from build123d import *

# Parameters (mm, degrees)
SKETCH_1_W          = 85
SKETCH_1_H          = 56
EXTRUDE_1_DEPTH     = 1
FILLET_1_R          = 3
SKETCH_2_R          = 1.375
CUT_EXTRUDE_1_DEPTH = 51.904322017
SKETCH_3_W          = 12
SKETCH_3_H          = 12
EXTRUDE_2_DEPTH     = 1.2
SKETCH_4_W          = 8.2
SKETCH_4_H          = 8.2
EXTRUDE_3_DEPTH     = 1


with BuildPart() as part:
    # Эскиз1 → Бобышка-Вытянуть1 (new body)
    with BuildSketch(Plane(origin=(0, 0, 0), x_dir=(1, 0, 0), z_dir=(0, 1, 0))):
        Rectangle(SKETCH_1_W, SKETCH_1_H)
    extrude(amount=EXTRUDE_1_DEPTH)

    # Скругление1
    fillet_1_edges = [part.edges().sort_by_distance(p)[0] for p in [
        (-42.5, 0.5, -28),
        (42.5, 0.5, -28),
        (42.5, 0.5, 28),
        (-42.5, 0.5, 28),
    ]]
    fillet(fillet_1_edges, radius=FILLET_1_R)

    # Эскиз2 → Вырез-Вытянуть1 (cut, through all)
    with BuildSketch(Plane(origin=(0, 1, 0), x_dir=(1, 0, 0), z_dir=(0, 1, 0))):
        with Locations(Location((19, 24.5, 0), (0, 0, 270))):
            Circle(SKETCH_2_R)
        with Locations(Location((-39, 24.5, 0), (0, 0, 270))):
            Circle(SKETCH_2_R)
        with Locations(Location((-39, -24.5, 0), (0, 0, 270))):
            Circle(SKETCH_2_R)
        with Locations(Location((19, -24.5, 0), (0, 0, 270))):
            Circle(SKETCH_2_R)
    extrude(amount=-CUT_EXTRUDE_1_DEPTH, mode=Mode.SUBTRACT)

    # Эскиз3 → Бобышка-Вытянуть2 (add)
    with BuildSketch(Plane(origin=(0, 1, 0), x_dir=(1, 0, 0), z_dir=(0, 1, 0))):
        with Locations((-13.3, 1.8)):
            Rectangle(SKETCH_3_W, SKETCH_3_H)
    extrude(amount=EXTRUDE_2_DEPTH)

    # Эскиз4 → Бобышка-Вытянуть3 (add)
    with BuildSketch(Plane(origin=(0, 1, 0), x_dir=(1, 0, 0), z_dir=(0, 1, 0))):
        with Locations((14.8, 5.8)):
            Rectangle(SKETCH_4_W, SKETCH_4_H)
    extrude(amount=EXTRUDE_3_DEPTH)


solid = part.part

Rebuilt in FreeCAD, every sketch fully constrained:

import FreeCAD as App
import Part
import Sketcher

V = App.Vector


def edges_at(feature, points):
    """Names of the edges that pass closest to the given points."""
    edges = feature.Shape.Edges
    near = lambda p: min(range(len(edges)), key=lambda i: edges[i].distToShape(Part.Vertex(*p))[0])
    return sorted({f"Edge{near(p) + 1}" for p in points})

doc = App.newDocument("Part")
body = doc.addObject("PartDesign::Body", "Body")

# Sketch on XZ plane
sketch1 = body.newObject("Sketcher::SketchObject", "Sketch")
sketch1.AttachmentSupport = (doc.getObject("XZ_Plane"), [""])
sketch1.MapMode = "FlatFace"
sketch1.addGeometry([
    Part.LineSegment(V(-42.5, -28, 0), V(-42.5, 28, 0)),
    Part.LineSegment(V(-42.5, 28, 0), V(42.5, 28, 0)),
    Part.LineSegment(V(42.5, 28, 0), V(42.5, -28, 0)),
    Part.LineSegment(V(42.5, -28, 0), V(-42.5, -28, 0)),
], False)
sketch1.addConstraint([
    Sketcher.Constraint("Coincident", 0, 2, 1, 1),
    Sketcher.Constraint("Coincident", 1, 2, 2, 1),
    Sketcher.Constraint("Coincident", 2, 2, 3, 1),
    Sketcher.Constraint("Coincident", 3, 2, 0, 1),
    Sketcher.Constraint("Vertical", 0),
    Sketcher.Constraint("Horizontal", 1),
    Sketcher.Constraint("Vertical", 2),
    Sketcher.Constraint("Horizontal", 3),
    Sketcher.Constraint("Symmetric", 0, 2, 2, 2, -1, 1),
    Sketcher.Constraint("DistanceX", 1, 1, 1, 2, 85.0),
    Sketcher.Constraint("DistanceY", 0, 1, 0, 2, 56.0),
])
pad1 = body.newObject("PartDesign::Pad", "Pad")
pad1.Profile = sketch1
pad1.Length = 1
pad1.Reversed = True
doc.recompute()

fillet = body.newObject("PartDesign::Fillet", "Fillet")
fillet.Base = (pad1, edges_at(pad1, [
    (-42.5, 0.5, -28),
    (42.5, 0.5, -28),
    (42.5, 0.5, 28),
    (-42.5, 0.5, 28),
]))
fillet.Radius = 3

# Sketch on XZ plane
sketch2 = body.newObject("Sketcher::SketchObject", "Sketch001")
sketch2.AttachmentSupport = (doc.getObject("XZ_Plane"), [""])
sketch2.MapMode = "FlatFace"
sketch2.AttachmentOffset = App.Placement(V(0, 0, -1), App.Rotation())
sketch2.addGeometry([
    Part.Circle(V(19, -24.5, 0), V(0, 0, 1), 1.375),
    Part.Circle(V(-39, -24.5, 0), V(0, 0, 1), 1.375),
    Part.Circle(V(-39, 24.5, 0), V(0, 0, 1), 1.375),
    Part.Circle(V(19, 24.5, 0), V(0, 0, 1), 1.375),
], False)
sketch2.addConstraint([
    Sketcher.Constraint("Equal", 0, 1),
    Sketcher.Constraint("Equal", 1, 2),
    Sketcher.Constraint("Equal", 2, 3),
    Sketcher.Constraint("Symmetric", 1, 3, 2, 3, -1),
    Sketcher.Constraint("Symmetric", 0, 3, 3, 3, -1),
    Sketcher.Constraint("Horizontal", 0, 3, 1, 3),
    Sketcher.Constraint("Diameter", 0, 2.75),
    Sketcher.Constraint("DistanceX", -1, 1, 0, 3, 19.0),
    Sketcher.Constraint("DistanceX", 1, 3, -1, 1, 39.0),
    Sketcher.Constraint("DistanceY", 1, 3, 2, 3, 49.0),
])
pocket1 = body.newObject("PartDesign::Pocket", "Pocket")
pocket1.Profile = sketch2
pocket1.Type = "ThroughAll"
pocket1.Reversed = True

# Sketch on XZ plane
sketch3 = body.newObject("Sketcher::SketchObject", "Sketch002")
sketch3.AttachmentSupport = (doc.getObject("XZ_Plane"), [""])
sketch3.MapMode = "FlatFace"
sketch3.AttachmentOffset = App.Placement(V(0, 0, -1), App.Rotation())
sketch3.addGeometry([
    Part.LineSegment(V(-19.3, -7.8, 0), V(-19.3, 4.2, 0)),
    Part.LineSegment(V(-19.3, 4.2, 0), V(-7.3, 4.2, 0)),
    Part.LineSegment(V(-7.3, 4.2, 0), V(-7.3, -7.8, 0)),
    Part.LineSegment(V(-7.3, -7.8, 0), V(-19.3, -7.8, 0)),
], False)
sketch3.addConstraint([
    Sketcher.Constraint("Coincident", 0, 2, 1, 1),
    Sketcher.Constraint("Coincident", 1, 2, 2, 1),
    Sketcher.Constraint("Coincident", 2, 2, 3, 1),
    Sketcher.Constraint("Coincident", 3, 2, 0, 1),
    Sketcher.Constraint("Vertical", 0),
    Sketcher.Constraint("Horizontal", 1),
    Sketcher.Constraint("Vertical", 2),
    Sketcher.Constraint("Horizontal", 3),
    Sketcher.Constraint("Equal", 3, 0),
    Sketcher.Constraint("DistanceX", 1, 1, 1, 2, 12.0),
    Sketcher.Constraint("DistanceX", 0, 2, -1, 1, 19.3),
    Sketcher.Constraint("DistanceY", -1, 1, 0, 2, 4.2),
])
pad2 = body.newObject("PartDesign::Pad", "Pad001")
pad2.Profile = sketch3
pad2.Length = 1.2
pad2.Reversed = True

# Sketch on XZ plane
sketch4 = body.newObject("Sketcher::SketchObject", "Sketch003")
sketch4.AttachmentSupport = (doc.getObject("XZ_Plane"), [""])
sketch4.MapMode = "FlatFace"
sketch4.AttachmentOffset = App.Placement(V(0, 0, -1), App.Rotation())
sketch4.addGeometry([
    Part.LineSegment(V(10.7, -9.9, 0), V(10.7, -1.7, 0)),
    Part.LineSegment(V(10.7, -1.7, 0), V(18.9, -1.7, 0)),
    Part.LineSegment(V(18.9, -1.7, 0), V(18.9, -9.9, 0)),
    Part.LineSegment(V(18.9, -9.9, 0), V(10.7, -9.9, 0)),
], False)
sketch4.addConstraint([
    Sketcher.Constraint("Coincident", 0, 2, 1, 1),
    Sketcher.Constraint("Coincident", 1, 2, 2, 1),
    Sketcher.Constraint("Coincident", 2, 2, 3, 1),
    Sketcher.Constraint("Coincident", 3, 2, 0, 1),
    Sketcher.Constraint("Vertical", 0),
    Sketcher.Constraint("Horizontal", 1),
    Sketcher.Constraint("Vertical", 2),
    Sketcher.Constraint("Horizontal", 3),
    Sketcher.Constraint("Equal", 3, 0),
    Sketcher.Constraint("DistanceX", 1, 1, 1, 2, 8.2),
    Sketcher.Constraint("DistanceX", -1, 1, 0, 2, 10.7),
    Sketcher.Constraint("DistanceY", 0, 2, -1, 1, 1.7),
])
pad3 = body.newObject("PartDesign::Pad", "Pad002")
pad3.Profile = sketch4
pad3.Length = 1
pad3.Reversed = True

doc.recompute()
